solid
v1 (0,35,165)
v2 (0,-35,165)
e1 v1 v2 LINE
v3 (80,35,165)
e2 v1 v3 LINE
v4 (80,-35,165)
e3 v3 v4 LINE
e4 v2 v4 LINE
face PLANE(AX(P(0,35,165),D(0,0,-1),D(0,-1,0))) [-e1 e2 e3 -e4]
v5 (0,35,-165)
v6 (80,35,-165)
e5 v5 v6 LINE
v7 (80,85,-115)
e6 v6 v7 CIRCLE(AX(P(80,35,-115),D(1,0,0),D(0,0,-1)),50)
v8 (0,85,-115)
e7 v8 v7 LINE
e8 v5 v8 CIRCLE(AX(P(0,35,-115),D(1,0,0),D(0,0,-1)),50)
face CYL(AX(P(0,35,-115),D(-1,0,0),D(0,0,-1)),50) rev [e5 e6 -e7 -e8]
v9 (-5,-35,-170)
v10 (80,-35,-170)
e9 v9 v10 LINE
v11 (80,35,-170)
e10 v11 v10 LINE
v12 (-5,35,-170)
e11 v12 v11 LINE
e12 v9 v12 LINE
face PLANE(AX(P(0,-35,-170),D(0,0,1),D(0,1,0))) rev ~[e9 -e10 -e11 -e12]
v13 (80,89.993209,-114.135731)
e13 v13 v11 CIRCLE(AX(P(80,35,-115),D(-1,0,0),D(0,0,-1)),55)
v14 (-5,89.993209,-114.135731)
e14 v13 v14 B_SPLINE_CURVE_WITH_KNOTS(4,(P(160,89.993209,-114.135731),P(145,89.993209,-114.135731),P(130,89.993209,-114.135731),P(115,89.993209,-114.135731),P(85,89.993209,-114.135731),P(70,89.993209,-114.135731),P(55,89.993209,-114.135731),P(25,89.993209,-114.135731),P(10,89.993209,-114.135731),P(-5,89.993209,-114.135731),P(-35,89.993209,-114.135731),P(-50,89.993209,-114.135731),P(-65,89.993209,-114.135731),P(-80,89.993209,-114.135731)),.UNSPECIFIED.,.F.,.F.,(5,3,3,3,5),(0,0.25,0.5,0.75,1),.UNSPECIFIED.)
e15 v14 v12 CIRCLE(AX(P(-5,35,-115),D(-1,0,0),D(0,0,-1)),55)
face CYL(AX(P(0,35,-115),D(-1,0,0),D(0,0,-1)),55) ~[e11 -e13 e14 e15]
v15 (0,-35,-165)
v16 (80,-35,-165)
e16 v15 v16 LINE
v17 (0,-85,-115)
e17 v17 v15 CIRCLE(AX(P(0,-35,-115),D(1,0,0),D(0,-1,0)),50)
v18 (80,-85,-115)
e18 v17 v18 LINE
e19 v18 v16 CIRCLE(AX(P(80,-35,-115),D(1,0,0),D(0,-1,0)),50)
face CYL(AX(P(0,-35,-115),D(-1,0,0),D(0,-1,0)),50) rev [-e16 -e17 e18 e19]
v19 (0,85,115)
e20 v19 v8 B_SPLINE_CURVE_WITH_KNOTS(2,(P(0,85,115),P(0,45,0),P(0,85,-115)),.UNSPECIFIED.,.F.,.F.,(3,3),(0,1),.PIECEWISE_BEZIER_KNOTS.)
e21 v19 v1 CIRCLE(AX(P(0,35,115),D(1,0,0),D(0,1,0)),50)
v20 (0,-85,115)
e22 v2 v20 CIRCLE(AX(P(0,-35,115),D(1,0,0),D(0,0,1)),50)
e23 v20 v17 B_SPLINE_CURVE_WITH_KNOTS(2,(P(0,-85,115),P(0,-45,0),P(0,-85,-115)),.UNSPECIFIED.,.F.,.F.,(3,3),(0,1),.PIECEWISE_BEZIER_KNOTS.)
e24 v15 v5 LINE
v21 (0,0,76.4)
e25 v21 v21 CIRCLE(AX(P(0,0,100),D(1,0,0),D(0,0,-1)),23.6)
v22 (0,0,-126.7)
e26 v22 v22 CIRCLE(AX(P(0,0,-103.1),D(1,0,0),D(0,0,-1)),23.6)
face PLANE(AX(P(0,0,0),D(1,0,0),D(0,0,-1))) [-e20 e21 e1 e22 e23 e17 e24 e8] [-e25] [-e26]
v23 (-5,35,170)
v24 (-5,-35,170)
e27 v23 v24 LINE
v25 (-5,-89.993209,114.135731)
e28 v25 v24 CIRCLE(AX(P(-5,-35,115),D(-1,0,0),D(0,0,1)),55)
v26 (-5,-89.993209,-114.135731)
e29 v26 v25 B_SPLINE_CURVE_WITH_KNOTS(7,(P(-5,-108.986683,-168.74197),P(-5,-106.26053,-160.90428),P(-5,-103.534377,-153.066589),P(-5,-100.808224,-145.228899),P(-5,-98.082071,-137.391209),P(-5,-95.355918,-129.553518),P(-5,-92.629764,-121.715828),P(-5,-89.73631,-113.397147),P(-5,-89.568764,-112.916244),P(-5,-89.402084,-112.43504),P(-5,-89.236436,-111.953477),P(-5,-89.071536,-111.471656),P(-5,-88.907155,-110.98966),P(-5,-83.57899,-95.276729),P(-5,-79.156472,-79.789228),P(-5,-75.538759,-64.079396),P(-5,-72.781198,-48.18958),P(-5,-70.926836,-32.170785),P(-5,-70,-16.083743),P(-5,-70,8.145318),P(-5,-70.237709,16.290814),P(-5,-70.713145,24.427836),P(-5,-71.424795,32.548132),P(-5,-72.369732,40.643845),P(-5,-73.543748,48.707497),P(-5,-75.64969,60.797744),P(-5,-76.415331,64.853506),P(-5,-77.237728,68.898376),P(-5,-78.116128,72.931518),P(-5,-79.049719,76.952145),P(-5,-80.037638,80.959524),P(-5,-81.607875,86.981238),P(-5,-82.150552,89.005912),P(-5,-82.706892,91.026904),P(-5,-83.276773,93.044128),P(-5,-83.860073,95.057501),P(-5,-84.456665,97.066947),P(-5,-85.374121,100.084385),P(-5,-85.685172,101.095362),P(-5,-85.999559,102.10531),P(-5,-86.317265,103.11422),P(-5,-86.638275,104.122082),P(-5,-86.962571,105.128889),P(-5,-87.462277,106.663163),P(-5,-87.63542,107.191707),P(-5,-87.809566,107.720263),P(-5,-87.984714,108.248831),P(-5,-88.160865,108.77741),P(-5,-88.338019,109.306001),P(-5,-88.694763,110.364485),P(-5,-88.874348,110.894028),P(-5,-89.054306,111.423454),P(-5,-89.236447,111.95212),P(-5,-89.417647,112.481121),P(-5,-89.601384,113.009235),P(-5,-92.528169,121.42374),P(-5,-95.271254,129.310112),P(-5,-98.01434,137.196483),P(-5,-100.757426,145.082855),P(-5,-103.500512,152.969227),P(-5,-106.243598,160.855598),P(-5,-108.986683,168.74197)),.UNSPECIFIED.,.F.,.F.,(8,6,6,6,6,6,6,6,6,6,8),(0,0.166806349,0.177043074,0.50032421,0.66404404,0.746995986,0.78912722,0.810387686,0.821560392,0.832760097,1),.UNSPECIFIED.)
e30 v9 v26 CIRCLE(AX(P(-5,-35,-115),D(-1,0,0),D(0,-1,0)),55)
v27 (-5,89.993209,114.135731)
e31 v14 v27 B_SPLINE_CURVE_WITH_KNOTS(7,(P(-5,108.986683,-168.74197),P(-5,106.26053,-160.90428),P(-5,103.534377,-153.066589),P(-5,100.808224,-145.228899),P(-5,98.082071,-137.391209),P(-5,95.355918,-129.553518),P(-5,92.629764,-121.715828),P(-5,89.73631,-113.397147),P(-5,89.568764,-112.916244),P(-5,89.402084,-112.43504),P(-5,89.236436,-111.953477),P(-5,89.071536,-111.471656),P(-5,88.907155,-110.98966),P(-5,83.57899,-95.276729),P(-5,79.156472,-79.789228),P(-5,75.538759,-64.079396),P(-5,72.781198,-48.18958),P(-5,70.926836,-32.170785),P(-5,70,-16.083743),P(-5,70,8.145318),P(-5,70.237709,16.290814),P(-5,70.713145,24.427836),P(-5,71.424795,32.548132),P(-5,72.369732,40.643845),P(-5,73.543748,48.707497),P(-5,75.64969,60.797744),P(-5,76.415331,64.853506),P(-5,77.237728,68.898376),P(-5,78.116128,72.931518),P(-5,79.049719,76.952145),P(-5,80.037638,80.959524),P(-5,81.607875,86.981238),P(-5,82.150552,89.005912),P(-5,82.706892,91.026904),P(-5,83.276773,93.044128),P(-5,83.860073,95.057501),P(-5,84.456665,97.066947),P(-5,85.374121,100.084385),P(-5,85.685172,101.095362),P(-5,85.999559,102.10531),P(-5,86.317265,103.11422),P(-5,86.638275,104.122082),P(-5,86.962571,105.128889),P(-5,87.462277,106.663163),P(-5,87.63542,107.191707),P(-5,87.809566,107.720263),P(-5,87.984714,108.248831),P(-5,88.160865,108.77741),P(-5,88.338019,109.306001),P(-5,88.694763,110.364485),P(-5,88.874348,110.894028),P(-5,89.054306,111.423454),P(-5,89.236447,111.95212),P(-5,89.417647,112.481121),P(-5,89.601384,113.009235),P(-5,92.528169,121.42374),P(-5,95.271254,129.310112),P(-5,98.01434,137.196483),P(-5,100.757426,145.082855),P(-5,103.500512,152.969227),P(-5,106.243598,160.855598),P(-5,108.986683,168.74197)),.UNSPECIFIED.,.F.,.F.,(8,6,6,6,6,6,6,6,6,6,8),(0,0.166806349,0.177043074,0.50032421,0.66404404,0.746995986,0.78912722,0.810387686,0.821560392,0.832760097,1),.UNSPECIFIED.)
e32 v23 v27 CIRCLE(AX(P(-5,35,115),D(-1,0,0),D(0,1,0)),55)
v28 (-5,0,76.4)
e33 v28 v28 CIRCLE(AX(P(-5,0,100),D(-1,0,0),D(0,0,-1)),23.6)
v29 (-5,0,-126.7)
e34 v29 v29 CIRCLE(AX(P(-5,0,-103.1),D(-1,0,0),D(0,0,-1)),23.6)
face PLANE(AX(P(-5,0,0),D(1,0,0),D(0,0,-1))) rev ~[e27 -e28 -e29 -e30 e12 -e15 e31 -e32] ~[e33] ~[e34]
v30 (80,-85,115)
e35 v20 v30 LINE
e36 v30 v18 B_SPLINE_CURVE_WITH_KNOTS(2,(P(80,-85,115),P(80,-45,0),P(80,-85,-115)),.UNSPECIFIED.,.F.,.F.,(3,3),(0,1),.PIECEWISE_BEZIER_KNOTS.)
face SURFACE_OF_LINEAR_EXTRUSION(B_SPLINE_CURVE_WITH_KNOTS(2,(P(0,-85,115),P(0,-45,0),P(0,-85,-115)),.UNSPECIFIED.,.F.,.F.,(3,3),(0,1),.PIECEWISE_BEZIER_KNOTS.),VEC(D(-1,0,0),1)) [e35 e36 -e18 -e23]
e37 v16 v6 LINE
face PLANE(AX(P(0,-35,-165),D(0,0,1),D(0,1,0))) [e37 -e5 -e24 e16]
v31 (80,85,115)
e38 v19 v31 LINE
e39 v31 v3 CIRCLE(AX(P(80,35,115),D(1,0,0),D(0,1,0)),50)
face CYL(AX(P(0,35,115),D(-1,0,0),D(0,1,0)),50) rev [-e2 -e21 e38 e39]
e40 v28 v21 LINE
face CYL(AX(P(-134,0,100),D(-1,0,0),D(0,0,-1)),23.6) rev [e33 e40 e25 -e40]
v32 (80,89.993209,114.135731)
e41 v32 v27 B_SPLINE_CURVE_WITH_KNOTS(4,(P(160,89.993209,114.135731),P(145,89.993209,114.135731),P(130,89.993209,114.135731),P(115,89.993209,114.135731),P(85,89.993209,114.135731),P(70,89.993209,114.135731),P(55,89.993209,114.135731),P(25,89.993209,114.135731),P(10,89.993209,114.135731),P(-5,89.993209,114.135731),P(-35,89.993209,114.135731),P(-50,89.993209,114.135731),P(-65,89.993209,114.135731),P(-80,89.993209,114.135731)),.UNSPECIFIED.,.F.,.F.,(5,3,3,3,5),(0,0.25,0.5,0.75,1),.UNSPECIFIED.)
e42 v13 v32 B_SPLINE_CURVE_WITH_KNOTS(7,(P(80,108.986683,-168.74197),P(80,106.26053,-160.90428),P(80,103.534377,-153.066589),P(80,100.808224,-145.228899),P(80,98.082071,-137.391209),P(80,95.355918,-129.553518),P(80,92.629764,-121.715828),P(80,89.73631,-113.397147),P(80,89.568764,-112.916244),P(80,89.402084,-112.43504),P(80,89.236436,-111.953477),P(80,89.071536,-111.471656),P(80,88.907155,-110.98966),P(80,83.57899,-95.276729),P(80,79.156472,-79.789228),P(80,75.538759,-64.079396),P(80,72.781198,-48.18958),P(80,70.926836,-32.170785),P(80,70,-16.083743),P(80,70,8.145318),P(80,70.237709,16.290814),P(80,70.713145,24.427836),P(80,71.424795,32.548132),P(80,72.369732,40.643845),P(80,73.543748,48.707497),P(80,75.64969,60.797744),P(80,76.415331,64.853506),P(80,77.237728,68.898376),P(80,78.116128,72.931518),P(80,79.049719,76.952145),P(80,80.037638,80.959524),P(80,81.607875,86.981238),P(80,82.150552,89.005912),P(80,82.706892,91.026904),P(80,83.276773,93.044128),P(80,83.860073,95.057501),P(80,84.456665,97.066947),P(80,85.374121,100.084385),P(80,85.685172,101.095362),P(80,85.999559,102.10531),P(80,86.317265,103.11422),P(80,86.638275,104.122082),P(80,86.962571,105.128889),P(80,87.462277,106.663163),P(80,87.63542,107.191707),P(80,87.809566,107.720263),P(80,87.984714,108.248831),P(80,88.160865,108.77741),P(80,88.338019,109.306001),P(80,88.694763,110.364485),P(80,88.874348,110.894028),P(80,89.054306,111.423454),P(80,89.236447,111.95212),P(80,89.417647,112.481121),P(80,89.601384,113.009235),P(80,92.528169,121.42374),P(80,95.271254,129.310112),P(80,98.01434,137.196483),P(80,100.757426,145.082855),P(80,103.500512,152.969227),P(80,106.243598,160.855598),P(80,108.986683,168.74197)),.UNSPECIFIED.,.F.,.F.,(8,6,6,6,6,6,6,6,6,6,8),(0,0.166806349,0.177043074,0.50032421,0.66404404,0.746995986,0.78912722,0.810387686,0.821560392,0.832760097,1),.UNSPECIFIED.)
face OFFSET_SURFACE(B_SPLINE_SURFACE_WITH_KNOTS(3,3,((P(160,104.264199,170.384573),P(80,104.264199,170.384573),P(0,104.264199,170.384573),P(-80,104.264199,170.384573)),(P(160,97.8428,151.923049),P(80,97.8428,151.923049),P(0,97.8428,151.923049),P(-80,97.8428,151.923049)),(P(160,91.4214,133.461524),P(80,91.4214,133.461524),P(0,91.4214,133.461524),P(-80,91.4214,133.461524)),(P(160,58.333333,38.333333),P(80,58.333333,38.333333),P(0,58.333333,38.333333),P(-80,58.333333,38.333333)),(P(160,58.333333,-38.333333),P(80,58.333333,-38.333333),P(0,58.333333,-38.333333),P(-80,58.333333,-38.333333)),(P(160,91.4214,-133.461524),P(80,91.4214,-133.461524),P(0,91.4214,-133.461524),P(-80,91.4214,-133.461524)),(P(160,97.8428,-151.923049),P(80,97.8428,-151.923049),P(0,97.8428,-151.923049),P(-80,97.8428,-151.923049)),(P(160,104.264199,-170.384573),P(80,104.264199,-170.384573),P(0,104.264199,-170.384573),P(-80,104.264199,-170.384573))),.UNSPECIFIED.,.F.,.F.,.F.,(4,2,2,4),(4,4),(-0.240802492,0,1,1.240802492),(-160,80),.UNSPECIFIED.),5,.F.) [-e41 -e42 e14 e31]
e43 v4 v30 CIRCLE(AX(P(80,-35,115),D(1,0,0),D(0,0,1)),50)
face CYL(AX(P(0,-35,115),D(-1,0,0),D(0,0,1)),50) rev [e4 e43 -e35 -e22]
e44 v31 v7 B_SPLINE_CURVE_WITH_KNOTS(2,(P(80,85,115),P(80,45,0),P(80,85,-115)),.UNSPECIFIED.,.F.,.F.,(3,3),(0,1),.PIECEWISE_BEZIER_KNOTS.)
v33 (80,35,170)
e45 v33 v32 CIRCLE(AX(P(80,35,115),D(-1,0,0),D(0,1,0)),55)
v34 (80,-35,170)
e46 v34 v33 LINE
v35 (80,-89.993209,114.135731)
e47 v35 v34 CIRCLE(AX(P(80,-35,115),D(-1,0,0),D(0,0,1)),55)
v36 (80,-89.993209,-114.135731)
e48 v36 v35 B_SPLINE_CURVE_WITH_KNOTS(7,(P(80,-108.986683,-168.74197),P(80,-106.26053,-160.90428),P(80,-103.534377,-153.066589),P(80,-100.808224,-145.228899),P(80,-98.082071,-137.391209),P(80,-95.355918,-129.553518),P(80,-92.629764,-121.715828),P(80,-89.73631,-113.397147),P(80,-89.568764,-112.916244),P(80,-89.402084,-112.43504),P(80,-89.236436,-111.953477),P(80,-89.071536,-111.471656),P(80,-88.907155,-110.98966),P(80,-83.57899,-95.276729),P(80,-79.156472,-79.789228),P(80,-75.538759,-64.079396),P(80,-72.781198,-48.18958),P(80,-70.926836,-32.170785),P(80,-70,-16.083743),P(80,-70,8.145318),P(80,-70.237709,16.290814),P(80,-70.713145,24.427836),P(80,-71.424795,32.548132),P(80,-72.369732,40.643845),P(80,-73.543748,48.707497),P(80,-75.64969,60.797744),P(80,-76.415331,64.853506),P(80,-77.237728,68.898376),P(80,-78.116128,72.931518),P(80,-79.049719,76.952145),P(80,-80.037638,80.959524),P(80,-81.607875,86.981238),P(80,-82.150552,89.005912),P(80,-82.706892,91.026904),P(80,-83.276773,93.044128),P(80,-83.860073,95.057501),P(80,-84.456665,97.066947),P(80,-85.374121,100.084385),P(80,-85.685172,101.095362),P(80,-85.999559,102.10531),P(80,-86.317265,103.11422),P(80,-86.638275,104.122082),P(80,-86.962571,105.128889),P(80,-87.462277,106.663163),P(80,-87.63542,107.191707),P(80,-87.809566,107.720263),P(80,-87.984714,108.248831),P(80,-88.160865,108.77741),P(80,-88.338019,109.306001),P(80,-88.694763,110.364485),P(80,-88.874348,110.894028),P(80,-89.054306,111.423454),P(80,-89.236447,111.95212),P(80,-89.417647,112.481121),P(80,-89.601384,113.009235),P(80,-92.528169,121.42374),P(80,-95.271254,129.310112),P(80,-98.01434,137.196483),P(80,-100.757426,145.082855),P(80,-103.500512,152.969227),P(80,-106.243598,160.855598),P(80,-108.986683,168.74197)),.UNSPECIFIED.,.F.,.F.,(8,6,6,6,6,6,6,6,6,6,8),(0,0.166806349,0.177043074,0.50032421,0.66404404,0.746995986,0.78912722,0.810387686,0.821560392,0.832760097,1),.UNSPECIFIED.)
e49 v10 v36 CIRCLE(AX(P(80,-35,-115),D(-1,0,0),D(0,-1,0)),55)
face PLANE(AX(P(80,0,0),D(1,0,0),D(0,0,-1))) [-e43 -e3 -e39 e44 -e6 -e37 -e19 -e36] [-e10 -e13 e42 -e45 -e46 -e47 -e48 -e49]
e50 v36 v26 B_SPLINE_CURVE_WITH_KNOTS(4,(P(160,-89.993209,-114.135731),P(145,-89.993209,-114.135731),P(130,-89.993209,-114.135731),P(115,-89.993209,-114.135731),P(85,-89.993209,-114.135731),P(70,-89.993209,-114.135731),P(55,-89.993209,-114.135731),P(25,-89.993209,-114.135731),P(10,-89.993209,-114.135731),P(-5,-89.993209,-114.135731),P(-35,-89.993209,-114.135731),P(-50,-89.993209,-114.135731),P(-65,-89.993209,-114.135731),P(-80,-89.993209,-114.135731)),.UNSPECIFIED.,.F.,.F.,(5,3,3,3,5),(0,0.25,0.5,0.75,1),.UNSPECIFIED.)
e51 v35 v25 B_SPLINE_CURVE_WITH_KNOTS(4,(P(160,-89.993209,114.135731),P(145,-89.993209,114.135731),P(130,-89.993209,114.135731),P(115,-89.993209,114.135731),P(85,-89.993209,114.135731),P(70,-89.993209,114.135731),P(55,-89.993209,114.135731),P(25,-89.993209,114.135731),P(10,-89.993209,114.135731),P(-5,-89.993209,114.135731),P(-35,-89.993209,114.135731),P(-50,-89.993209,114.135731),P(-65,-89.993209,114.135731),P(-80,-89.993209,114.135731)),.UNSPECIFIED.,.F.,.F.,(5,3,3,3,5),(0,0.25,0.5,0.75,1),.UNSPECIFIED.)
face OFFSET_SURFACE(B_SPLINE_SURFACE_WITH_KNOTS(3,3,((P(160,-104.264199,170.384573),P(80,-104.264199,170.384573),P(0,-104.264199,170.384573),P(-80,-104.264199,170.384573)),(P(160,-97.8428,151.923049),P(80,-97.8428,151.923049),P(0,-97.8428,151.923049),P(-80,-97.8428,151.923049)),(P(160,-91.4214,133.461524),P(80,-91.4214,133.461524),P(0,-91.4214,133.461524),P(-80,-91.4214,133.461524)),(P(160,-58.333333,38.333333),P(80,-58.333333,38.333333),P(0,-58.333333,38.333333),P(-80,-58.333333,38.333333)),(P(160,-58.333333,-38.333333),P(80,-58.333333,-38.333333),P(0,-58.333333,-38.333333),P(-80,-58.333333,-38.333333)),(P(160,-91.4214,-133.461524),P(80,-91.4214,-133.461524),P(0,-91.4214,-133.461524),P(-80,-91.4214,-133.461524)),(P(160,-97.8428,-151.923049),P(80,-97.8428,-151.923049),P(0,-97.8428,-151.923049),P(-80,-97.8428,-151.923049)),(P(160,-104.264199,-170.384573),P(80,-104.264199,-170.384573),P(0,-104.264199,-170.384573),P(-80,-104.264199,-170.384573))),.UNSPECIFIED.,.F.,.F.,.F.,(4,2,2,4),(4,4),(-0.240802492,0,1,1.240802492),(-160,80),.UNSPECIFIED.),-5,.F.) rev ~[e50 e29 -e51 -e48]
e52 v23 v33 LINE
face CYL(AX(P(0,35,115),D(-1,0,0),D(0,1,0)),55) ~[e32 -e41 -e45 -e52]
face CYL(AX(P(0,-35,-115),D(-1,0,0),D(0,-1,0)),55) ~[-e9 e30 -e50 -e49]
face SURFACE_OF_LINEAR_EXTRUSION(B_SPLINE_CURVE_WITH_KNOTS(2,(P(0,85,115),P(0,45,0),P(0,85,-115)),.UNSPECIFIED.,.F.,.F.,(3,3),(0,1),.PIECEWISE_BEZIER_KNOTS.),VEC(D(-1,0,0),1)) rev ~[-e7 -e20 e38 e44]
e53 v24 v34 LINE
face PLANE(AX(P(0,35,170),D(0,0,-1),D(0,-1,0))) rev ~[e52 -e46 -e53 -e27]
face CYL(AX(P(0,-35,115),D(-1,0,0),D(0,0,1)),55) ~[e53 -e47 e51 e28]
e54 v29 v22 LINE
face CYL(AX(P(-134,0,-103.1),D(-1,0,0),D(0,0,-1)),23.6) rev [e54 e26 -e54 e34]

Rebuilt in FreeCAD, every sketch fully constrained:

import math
import FreeCAD as App
import Part
import Sketcher

V = App.Vector


def faces_at(feature, points):
    """Names of the faces that lie closest to the given points."""
    faces = feature.Shape.Faces
    near = lambda p: min(range(len(faces)), key=lambda i: faces[i].distToShape(Part.Vertex(*p))[0])
    return sorted({f"Face{near(p) + 1}" for p in points})

doc = App.newDocument("Part")
params = doc.addObject("Spreadsheet::Sheet", "Params")
for row, (alias, value) in enumerate([
    ("sketch1_radius", "50 mm"),
    ("sketch1_radius2", "50 mm"),
    ("sketch1_radius3", "50 mm"),
    ("sketch1_radius4", "50 mm"),
    ("sketch1_diameter", "47.2 mm"),
    ("pad1_length", "80 mm"),
    ("thickness_wall", "5 mm"),
    ("sketch2_diameter", "47.2 mm"),
    ("pocket1_length", "214 mm"),
], start=1):
    params.set(f"A{row}", alias)
    params.set(f"B{row}", "=" + value)
    params.setAlias(f"B{row}", alias)

body = doc.addObject("PartDesign::Body", "Body")

sketch1 = doc.addObject("Sketcher::SketchObject", "Sketch")
body.addObject(sketch1)
sketch1.AttachmentSupport = (doc.YZ_Plane, [""])
sketch1.MapMode = "FlatFace"
sketch1.addGeometry([
    Part.LineSegment(V(-35, -165, 0), V(35, -165, 0)),
    Part.ArcOfCircle(Part.Circle(V(35, -115, 0), V(0, 0, 1), 50), math.radians(-90), math.radians(0)),
    Part.BSplineCurve([V(85, 115, 0), V(45, 0, 0), V(85, -115, 0)], [3, 3], [0, 1], False, 2, [1, 1, 1], False),
    Part.ArcOfCircle(Part.Circle(V(35, 115, 0), V(0, 0, 1), 50), math.radians(0), math.radians(90)),
    Part.LineSegment(V(35, 165, 0), V(-35, 165, 0)),
    Part.ArcOfCircle(Part.Circle(V(-35, 115, 0), V(0, 0, 1), 50), math.radians(90), math.radians(180)),
    Part.BSplineCurve([V(-85, 115, 0), V(-45, 0, 0), V(-85, -115, 0)], [3, 3], [0, 1], False, 2, [1, 1, 1], False),
    Part.ArcOfCircle(Part.Circle(V(-35, -115, 0), V(0, 0, 1), 50), math.radians(-180), math.radians(-90)),
    Part.Circle(V(0, 100, 0), V(0, 0, 1), 23.6),
    Part.Circle(V(0, -103.1, 0), V(0, 0, 1), 23.6),
], False)
sketch1.addConstraint([
    Sketcher.Constraint("Block", 2),
    Sketcher.Constraint("Block", 6),
    Sketcher.Constraint("Coincident", 0, 2, 1, 1),
    Sketcher.Constraint("Coincident", 1, 2, 2, 2),
    Sketcher.Constraint("Coincident", 2, 1, 3, 1),
    Sketcher.Constraint("Coincident", 3, 2, 4, 1),
    Sketcher.Constraint("Coincident", 4, 2, 5, 1),
    Sketcher.Constraint("Coincident", 5, 2, 6, 1),
    Sketcher.Constraint("Coincident", 6, 2, 7, 1),
    Sketcher.Constraint("Coincident", 7, 2, 0, 1),
    Sketcher.Constraint("Horizontal", 0),
    Sketcher.Constraint("Horizontal", 4),
    Sketcher.Constraint("PointOnObject", 8, 3, -2),
    Sketcher.Constraint("PointOnObject", 9, 3, -2),
    Sketcher.Constraint("Radius", 1, 50.0),
    Sketcher.Constraint("Radius", 3, 50.0),
    Sketcher.Constraint("Radius", 5, 50.0),
    Sketcher.Constraint("Radius", 7, 50.0),
    Sketcher.Constraint("Diameter", 8, 47.2),
    Sketcher.Constraint("Diameter", 9, 47.2),
    Sketcher.Constraint("DistanceX", 0, 1, 0, 2, 70.0),
    Sketcher.Constraint("DistanceX", 4, 2, 4, 1, 70.0),
    Sketcher.Constraint("DistanceY", 1, 3, -1, 1, 115.0),
    Sketcher.Constraint("DistanceY", -1, 1, 3, 3, 115.0),
    Sketcher.Constraint("DistanceY", -1, 1, 8, 3, 100.0),
    Sketcher.Constraint("DistanceX", -1, 1, 0, 2, 35.0),
    Sketcher.Constraint("DistanceX", -1, 1, 3, 2, 35.0),
    Sketcher.Constraint("DistanceY", 9, 3, -1, 1, 103.1),
])
sketch1.setExpression("Constraints[14]", "Params.sketch1_radius")
sketch1.setExpression("Constraints[15]", "Params.sketch1_radius2")
sketch1.setExpression("Constraints[16]", "Params.sketch1_radius3")
sketch1.setExpression("Constraints[17]", "Params.sketch1_radius4")
sketch1.setExpression("Constraints[18]", "Params.sketch1_diameter")
pad1 = doc.addObject("PartDesign::Pad", "Pad")
body.addObject(pad1)
pad1.Profile = sketch1
pad1.setExpression("Length", "Params.pad1_length")
doc.recompute()

thickness = doc.addObject("PartDesign::Thickness", "Thickness")
body.addObject(thickness)
thickness.Base = (pad1, faces_at(pad1, [(80, 0, 0)]))
thickness.setExpression("Value", "Params.thickness_wall")
thickness.Reversed = False
thickness.Join = "Intersection"

sketch2 = doc.addObject("Sketcher::SketchObject", "Sketch001")
body.addObject(sketch2)
sketch2.AttachmentSupport = (doc.YZ_Plane, [""])
sketch2.MapMode = "FlatFace"
sketch2.AttachmentOffset = App.Placement(V(0, 0, -134), App.Rotation())
sketch2.addGeometry([
    Part.Circle(V(0, 100, 0), V(0, 0, 1), 24),
    Part.Circle(V(0, -103, 0), V(0, 0, 1), 24),
], False)
sketch2.addConstraint([
    Sketcher.Constraint("Equal", 0, 1),
    Sketcher.Constraint("PointOnObject", 0, 3, -2),
    Sketcher.Constraint("PointOnObject", 1, 3, -2),
    Sketcher.Constraint("Diameter", 0, 47.2),
    Sketcher.Constraint("DistanceY", -1, 1, 0, 3, 100.0),
    Sketcher.Constraint("DistanceY", 1, 3, -1, 1, 103.1),
])
sketch2.setExpression("Constraints[3]", "Params.sketch2_diameter")
pocket1 = doc.addObject("PartDesign::Pocket", "Pocket")
body.addObject(pocket1)
pocket1.Profile = sketch2
pocket1.setExpression("Length", "Params.pocket1_length")
pocket1.Reversed = True

doc.recompute()
